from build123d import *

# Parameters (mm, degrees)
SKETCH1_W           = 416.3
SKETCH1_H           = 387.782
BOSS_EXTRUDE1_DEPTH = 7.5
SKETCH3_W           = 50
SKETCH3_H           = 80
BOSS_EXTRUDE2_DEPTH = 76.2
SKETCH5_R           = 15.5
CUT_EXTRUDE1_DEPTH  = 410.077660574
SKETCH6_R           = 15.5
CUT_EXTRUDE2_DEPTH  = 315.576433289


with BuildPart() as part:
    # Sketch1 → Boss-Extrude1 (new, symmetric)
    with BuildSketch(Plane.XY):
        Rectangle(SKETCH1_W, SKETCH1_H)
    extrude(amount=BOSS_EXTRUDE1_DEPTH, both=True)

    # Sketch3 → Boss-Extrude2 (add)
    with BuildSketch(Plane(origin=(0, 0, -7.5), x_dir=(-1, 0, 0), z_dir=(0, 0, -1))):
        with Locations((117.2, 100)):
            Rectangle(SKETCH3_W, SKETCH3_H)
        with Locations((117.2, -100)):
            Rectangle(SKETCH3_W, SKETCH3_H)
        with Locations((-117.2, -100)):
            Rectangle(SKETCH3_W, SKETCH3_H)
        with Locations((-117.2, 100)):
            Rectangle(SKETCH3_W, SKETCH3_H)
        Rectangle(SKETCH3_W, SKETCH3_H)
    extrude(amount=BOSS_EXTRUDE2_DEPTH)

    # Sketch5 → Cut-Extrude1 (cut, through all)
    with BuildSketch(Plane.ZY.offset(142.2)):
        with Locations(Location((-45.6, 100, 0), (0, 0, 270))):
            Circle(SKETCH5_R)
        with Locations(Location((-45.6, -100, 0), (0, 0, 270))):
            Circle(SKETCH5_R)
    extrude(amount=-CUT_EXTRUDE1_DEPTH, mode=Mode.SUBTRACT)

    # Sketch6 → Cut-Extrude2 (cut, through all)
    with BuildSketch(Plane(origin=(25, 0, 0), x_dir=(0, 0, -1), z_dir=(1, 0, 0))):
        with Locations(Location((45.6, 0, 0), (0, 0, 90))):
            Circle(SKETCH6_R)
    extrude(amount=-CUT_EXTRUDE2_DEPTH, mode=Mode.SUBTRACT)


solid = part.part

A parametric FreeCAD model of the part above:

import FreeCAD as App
import Part
import Sketcher


def add_polygon(sketch, points):
    """Adds a closed chain of lines whose ends are joined by coincident constraints."""
    first, n = sketch.GeometryCount, len(points)
    for a, b in zip(points, points[1:] + points[:1]):
        sketch.addGeometry(Part.LineSegment(App.Vector(*a, 0), App.Vector(*b, 0)), False)
    for i in range(n):
        sketch.addConstraint(Sketcher.Constraint("Coincident", first + i, 2, first + (i + 1) % n, 1))

doc = App.newDocument("Part")
params = doc.addObject("Spreadsheet::Sheet", "Params")
for row, (alias, value) in enumerate([
    ("sketch1_width", "416.3 mm"),
    ("pad1_length", "15 mm"),
    ("sketch2_width", "50 mm"),
    ("sketch2_height", "80 mm"),
    ("pad2_length", "76.2 mm"),
    ("sketch3_diameter", "31 mm"),
    ("sketch4_diameter", "31 mm"),
], start=1):
    params.set(f"A{row}", alias)
    params.set(f"B{row}", "=" + value)
    params.setAlias(f"B{row}", alias)

body = doc.addObject("PartDesign::Body", "Body")

# Sketch on XY plane
sketch1 = body.newObject("Sketcher::SketchObject", "Sketch")
sketch1.AttachmentSupport = (doc.getObject("XY_Plane"), [""])
sketch1.MapMode = "FlatFace"
add_polygon(sketch1, [(-208, 194), (-208, -194), (208, -194), (208, 194)])  # lines 0-3
sketch1.addConstraint(Sketcher.Constraint("Vertical", 0))
sketch1.addConstraint(Sketcher.Constraint("Horizontal", 1))
sketch1.addConstraint(Sketcher.Constraint("Vertical", 2))
sketch1.addConstraint(Sketcher.Constraint("Horizontal", 3))
sketch1.addConstraint(Sketcher.Constraint("Symmetric", 0, 2, 2, 2, -1, 1))
sketch1.addConstraint(Sketcher.Constraint("DistanceX", 1, 1, 1, 2, 416.3))
sketch1.addConstraint(Sketcher.Constraint("DistanceY", 0, 2, 0, 1, 387.782))
sketch1.setExpression("Constraints[9]", "Params.sketch1_width")
pad1 = body.newObject("PartDesign::Pad", "Pad")
pad1.Profile = sketch1
pad1.setExpression("Length", "Params.pad1_length")
pad1.Midplane = True

# Sketch on XY plane
sketch2 = body.newObject("Sketcher::SketchObject", "Sketch001")
sketch2.AttachmentSupport = (doc.getObject("XY_Plane"), [""])
sketch2.MapMode = "FlatFace"
sketch2.AttachmentOffset = App.Placement(App.Vector(0, 0, -7.5), App.Rotation())
add_polygon(sketch2, [(-92, 140), (-92, 60), (-142, 60), (-142, 140)])  # lines 0-3
add_polygon(sketch2, [(-92, -60), (-92, -140), (-142, -140), (-142, -60)])  # lines 4-7
add_polygon(sketch2, [(142, -60), (142, -140), (92, -140), (92, -60)])  # lines 8-11
add_polygon(sketch2, [(142, 140), (142, 60), (92, 60), (92, 140)])  # lines 12-15
add_polygon(sketch2, [(25, 40), (25, -40), (-25, -40), (-25, 40)])  # lines 16-19
sketch2.addConstraint(Sketcher.Constraint("Vertical", 0))
sketch2.addConstraint(Sketcher.Constraint("Horizontal", 1))
sketch2.addConstraint(Sketcher.Constraint("Vertical", 2))
sketch2.addConstraint(Sketcher.Constraint("Horizontal", 3))
sketch2.addConstraint(Sketcher.Constraint("Vertical", 4))
sketch2.addConstraint(Sketcher.Constraint("Horizontal", 5))
sketch2.addConstraint(Sketcher.Constraint("Vertical", 6))
sketch2.addConstraint(Sketcher.Constraint("Horizontal", 7))
sketch2.addConstraint(Sketcher.Constraint("Vertical", 8))
sketch2.addConstraint(Sketcher.Constraint("Horizontal", 9))
sketch2.addConstraint(Sketcher.Constraint("Vertical", 10))
sketch2.addConstraint(Sketcher.Constraint("Horizontal", 11))
sketch2.addConstraint(Sketcher.Constraint("Vertical", 12))
sketch2.addConstraint(Sketcher.Constraint("Horizontal", 13))
sketch2.addConstraint(Sketcher.Constraint("Vertical", 14))
sketch2.addConstraint(Sketcher.Constraint("Horizontal", 15))
sketch2.addConstraint(Sketcher.Constraint("Vertical", 16))
sketch2.addConstraint(Sketcher.Constraint("Horizontal", 17))
sketch2.addConstraint(Sketcher.Constraint("Vertical", 18))
sketch2.addConstraint(Sketcher.Constraint("Horizontal", 19))
sketch2.addConstraint(Sketcher.Constraint("Symmetric", 2, 2, 8, 2, -1, 1))
sketch2.addConstraint(Sketcher.Constraint("Symmetric", 0, 2, 10, 2, -1, 1))
sketch2.addConstraint(Sketcher.Constraint("Symmetric", 6, 2, 12, 2, -1, 1))
sketch2.addConstraint(Sketcher.Constraint("Symmetric", 4, 2, 14, 2, -1, 1))
sketch2.addConstraint(Sketcher.Constraint("Symmetric", 16, 2, 18, 2, -1, 1))
sketch2.addConstraint(Sketcher.Constraint("Symmetric", 5, 2, 8, 2, -2))
sketch2.addConstraint(Sketcher.Constraint("Symmetric", 7, 2, 10, 2, -2))
sketch2.addConstraint(Sketcher.Constraint("Equal", 15, 17))
sketch2.addConstraint(Sketcher.Constraint("Equal", 14, 16))
sketch2.addConstraint(Sketcher.Constraint("DistanceX", 1, 2, 1, 1, 50.0))
sketch2.addConstraint(Sketcher.Constraint("DistanceY", 0, 2, 0, 1, 80.0))
sketch2.addConstraint(Sketcher.Constraint("DistanceY", -1, 1, 0, 2, 60.0))
sketch2.addConstraint(Sketcher.Constraint("DistanceX", 0, 2, -1, 1, 92.2))
sketch2.setExpression("Constraints[49]", "Params.sketch2_width")
sketch2.setExpression("Constraints[50]", "Params.sketch2_height")
pad2 = body.newObject("PartDesign::Pad", "Pad001")
pad2.Profile = sketch2
pad2.setExpression("Length", "Params.pad2_length")
pad2.Reversed = True

# Sketch on YZ plane
sketch3 = body.newObject("Sketcher::SketchObject", "Sketch002")
sketch3.AttachmentSupport = (doc.getObject("YZ_Plane"), [""])
sketch3.MapMode = "FlatFace"
sketch3.AttachmentOffset = App.Placement(App.Vector(0, 0, -142.2), App.Rotation())
sketch3.addGeometry(Part.Circle(App.Vector(100, -46, 0), App.Vector(0, 0, 1), 16), False)
sketch3.addGeometry(Part.Circle(App.Vector(-100, -46, 0), App.Vector(0, 0, 1), 16), False)
sketch3.addConstraint(Sketcher.Constraint("Equal", 0, 1))
sketch3.addConstraint(Sketcher.Constraint("Symmetric", 0, 3, 1, 3, -2))
sketch3.addConstraint(Sketcher.Constraint("Diameter", 0, 31.0))
sketch3.addConstraint(Sketcher.Constraint("DistanceX", -1, 1, 0, 3, 100.0))
sketch3.addConstraint(Sketcher.Constraint("DistanceY", 0, 3, -1, 1, 45.6))
sketch3.setExpression("Constraints[2]", "Params.sketch3_diameter")
pocket1 = body.newObject("PartDesign::Pocket", "Pocket")
pocket1.Profile = sketch3
pocket1.Type = "ThroughAll"
pocket1.Reversed = True

# Sketch on YZ plane
sketch4 = body.newObject("Sketcher::SketchObject", "Sketch003")
sketch4.AttachmentSupport = (doc.getObject("YZ_Plane"), [""])
sketch4.MapMode = "FlatFace"
sketch4.AttachmentOffset = App.Placement(App.Vector(0, 0, 25), App.Rotation())
sketch4.addGeometry(Part.Circle(App.Vector(0, -46, 0), App.Vector(0, 0, 1), 16), False)
sketch4.addConstraint(Sketcher.Constraint("PointOnObject", 0, 3, -2))
sketch4.addConstraint(Sketcher.Constraint("Diameter", 0, 31.0))
sketch4.addConstraint(Sketcher.Constraint("DistanceY", 0, 3, -1, 1, 45.6))
sketch4.setExpression("Constraints[1]", "Params.sketch4_diameter")
pocket2 = body.newObject("PartDesign::Pocket", "Pocket001")
pocket2.Profile = sketch4
pocket2.Type = "ThroughAll"

doc.recompute()
